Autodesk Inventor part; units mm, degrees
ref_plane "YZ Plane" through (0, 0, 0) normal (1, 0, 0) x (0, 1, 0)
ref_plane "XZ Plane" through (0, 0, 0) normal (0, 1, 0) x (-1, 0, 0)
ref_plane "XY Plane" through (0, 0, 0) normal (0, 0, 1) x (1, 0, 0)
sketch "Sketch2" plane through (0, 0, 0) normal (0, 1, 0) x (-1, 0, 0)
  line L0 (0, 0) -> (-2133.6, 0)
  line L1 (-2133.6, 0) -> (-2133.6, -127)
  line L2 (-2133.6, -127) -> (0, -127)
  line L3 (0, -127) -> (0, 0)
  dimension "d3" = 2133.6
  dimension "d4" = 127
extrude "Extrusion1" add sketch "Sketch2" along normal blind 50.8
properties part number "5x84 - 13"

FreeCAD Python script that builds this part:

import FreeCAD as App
import Part
import Sketcher
from FreeCAD import Vector
Q = App.Units.Quantity


def add_polygon(sketch, points):
    """Adds a closed chain of lines whose ends are joined by coincident constraints."""
    first, n = sketch.GeometryCount, len(points)
    for a, b in zip(points, points[1:] + points[:1]):
        sketch.addGeometry(Part.LineSegment(App.Vector(*a, 0), App.Vector(*b, 0)), False)
    for i in range(n):
        sketch.addConstraint(Sketcher.Constraint("Coincident", first + i, 2, first + (i + 1) % n, 1))

doc = App.newDocument("Part")
params = doc.addObject("Spreadsheet::Sheet", "Params")
for row, (alias, value) in enumerate([
    ("sketch1_width", "84 in"),
    ("sketch1_height", "5 in"),
    ("pad1_length", "2 in"),
], start=1):
    params.set(f"A{row}", alias)
    params.set(f"B{row}", "=" + value)
    params.setAlias(f"B{row}", alias)

body = doc.addObject("PartDesign::Body", "Body")

# Sketch on XZ plane
sketch1 = body.newObject("Sketcher::SketchObject", "Sketch")
sketch1.AttachmentSupport = (doc.getObject("XZ_Plane"), [""])
sketch1.MapMode = "FlatFace"
add_polygon(sketch1, [(0, -127), (0, 0), (2134, 0), (2134, -127)])  # lines 0-3
sketch1.addConstraint([
    Sketcher.Constraint("Vertical", 0),
    Sketcher.Constraint("Horizontal", 1),
    Sketcher.Constraint("Vertical", 2),
    Sketcher.Constraint("Horizontal", 3),
    Sketcher.Constraint("Coincident", 0, 2, -1, 1),
    Sketcher.Constraint("DistanceX", 1, 1, 1, 2, Q("84 in")),
    Sketcher.Constraint("DistanceY", 0, 1, 0, 2, Q("5 in")),
])
sketch1.setExpression("Constraints[9]", "Params.sketch1_width")
sketch1.setExpression("Constraints[10]", "Params.sketch1_height")
pad1 = body.newObject("PartDesign::Pad", "Pad")
pad1.Profile = sketch1
pad1.setExpression("Length", "Params.pad1_length")
pad1.Reversed = True

doc.recompute()
